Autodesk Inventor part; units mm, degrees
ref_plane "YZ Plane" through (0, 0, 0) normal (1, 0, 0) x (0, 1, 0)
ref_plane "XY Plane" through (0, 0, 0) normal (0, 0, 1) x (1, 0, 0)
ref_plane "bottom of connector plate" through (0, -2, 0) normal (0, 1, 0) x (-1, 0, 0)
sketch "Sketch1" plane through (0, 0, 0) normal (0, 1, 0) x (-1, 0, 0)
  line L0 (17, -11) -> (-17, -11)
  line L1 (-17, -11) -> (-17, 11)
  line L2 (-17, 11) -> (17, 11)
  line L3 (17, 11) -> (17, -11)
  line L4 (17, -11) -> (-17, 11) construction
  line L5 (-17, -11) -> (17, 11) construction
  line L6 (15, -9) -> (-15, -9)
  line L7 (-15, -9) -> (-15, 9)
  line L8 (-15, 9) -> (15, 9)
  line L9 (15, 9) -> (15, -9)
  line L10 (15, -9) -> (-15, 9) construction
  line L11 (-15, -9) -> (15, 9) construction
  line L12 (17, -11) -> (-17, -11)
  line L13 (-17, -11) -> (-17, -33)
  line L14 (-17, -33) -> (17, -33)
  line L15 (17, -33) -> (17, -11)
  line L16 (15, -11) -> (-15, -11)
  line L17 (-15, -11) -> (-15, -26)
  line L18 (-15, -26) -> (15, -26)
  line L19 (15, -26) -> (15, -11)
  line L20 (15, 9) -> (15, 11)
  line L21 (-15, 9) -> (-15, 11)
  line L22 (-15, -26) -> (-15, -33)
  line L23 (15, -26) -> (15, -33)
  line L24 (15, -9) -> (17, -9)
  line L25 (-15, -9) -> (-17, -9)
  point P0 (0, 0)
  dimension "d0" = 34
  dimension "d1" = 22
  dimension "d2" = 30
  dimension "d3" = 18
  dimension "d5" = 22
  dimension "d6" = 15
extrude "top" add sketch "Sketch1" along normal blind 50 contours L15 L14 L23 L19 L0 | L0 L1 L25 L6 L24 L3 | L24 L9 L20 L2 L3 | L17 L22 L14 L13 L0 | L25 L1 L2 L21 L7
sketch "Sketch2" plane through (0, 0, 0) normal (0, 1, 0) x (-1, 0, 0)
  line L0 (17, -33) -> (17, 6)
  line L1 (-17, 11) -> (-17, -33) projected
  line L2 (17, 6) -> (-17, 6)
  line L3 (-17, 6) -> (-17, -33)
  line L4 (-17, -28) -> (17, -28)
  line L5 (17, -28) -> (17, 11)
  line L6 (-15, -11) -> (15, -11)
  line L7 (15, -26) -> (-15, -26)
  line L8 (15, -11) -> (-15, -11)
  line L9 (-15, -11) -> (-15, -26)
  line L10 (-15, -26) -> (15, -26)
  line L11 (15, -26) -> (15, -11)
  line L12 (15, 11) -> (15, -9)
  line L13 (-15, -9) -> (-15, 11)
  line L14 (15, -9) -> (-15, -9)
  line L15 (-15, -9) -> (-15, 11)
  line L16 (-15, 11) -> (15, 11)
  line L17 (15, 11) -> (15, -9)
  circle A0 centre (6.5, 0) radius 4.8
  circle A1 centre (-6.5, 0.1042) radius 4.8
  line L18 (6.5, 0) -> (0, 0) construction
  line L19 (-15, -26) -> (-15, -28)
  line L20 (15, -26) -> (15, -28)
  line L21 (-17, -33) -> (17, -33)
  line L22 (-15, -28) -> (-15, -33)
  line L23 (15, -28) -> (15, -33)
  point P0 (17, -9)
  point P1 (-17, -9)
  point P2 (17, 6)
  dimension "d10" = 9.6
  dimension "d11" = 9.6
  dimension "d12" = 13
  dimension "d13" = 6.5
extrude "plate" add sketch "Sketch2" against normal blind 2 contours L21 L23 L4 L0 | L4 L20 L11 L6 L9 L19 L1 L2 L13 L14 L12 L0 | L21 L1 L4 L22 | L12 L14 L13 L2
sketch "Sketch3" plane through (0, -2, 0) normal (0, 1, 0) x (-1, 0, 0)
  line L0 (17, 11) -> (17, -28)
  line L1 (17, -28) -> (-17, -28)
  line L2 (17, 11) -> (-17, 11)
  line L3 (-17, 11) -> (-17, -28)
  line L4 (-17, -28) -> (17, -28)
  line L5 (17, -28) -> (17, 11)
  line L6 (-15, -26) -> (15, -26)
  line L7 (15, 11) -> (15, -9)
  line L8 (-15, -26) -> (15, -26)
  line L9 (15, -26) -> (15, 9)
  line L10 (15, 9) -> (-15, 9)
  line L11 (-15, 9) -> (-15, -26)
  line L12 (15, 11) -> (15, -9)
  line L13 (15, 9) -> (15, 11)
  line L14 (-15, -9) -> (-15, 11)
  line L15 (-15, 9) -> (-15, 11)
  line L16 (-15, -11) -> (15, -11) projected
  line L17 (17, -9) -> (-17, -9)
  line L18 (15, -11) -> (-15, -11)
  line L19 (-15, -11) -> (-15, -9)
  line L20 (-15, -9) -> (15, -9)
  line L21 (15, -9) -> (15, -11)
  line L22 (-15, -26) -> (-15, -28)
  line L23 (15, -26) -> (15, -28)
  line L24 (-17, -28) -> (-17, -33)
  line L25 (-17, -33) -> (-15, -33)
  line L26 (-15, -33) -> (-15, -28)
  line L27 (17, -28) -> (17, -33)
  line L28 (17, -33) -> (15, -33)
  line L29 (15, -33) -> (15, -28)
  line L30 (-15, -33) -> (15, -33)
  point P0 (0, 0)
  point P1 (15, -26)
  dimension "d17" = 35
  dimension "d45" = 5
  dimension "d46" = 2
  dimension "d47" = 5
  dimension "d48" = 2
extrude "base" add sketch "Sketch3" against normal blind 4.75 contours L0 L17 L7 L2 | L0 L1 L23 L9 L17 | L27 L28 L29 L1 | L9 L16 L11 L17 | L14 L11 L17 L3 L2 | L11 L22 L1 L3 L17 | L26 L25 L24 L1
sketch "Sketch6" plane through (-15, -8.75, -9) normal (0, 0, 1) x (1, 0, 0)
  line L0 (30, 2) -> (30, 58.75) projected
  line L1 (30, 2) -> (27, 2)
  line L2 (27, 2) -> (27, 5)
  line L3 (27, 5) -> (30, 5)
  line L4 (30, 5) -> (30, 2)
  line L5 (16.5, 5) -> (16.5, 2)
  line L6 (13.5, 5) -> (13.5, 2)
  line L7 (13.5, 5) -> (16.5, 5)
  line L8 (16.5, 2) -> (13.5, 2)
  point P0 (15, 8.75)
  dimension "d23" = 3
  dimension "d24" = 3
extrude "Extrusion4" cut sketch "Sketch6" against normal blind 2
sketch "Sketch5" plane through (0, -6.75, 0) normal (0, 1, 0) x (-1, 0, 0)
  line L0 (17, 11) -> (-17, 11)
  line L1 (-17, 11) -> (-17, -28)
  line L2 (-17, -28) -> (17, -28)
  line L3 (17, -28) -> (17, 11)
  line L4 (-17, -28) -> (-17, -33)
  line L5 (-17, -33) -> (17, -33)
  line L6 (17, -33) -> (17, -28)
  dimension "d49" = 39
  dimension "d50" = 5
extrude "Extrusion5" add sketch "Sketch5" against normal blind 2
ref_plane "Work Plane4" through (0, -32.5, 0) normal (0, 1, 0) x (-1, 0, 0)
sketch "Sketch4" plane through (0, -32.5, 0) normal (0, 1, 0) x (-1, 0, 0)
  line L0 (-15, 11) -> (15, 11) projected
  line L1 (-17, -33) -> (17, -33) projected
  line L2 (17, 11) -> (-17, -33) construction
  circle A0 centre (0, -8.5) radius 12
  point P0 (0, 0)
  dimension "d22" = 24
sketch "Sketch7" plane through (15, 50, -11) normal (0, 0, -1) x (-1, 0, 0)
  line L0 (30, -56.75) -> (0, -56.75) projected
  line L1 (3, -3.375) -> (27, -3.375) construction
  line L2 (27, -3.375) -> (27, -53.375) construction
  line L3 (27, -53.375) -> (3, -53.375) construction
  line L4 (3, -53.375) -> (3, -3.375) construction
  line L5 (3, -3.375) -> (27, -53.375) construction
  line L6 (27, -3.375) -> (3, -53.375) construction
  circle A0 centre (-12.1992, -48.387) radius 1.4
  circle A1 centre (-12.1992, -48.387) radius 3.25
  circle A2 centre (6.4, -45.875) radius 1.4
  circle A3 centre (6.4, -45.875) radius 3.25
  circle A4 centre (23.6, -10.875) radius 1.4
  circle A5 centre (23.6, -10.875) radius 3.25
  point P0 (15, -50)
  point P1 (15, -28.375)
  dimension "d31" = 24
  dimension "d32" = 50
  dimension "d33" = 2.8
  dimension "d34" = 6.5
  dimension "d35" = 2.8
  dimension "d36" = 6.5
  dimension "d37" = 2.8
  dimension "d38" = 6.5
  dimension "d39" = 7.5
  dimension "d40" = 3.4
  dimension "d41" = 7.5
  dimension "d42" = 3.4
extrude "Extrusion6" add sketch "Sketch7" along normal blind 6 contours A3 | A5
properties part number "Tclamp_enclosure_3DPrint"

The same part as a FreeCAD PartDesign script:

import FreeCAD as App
import Part
import Sketcher

V = App.Vector
Q = App.Units.Quantity

doc = App.newDocument("Part")
params = doc.addObject("Spreadsheet::Sheet", "Params")
for row, (alias, value) in enumerate([
    ("sketch1_width", "30 mm"),
    ("sketch1_height", "22 mm"),
    ("sketch1_height2", "20 mm"),
    ("pad1_length", "50 mm"),
    ("sketch2_diameter", "9.6 mm"),
    ("sketch2_width", "2 mm"),
    ("sketch2_width2", "34 mm"),
    ("sketch2_height", "39 mm"),
    ("sketch2_height2", "22 mm"),
    ("pad2_length", "2 mm"),
    ("sketch3_width", "2 mm"),
    ("sketch3_width2", "30 mm"),
    ("sketch3_height", "20 mm"),
    ("sketch3_height2", "44 mm"),
    ("pad3_length", "4.75 mm"),
    ("sketch4_width", "3 mm"),
    ("pocket1_length", "2 mm"),
    ("sketch5_width", "34 mm"),
    ("sketch5_height", "44 mm"),
    ("pad4_length", "2 mm"),
    ("sketch6_diameter", "6.5 mm"),
    ("sketch6_diameter2", "2.8 mm"),
    ("pad5_length", "6 mm"),
], start=1):
    params.set(f"A{row}", alias)
    params.set(f"B{row}", "=" + value)
    params.setAlias(f"B{row}", alias)

body = doc.addObject("PartDesign::Body", "Body")

sketch1 = body.newObject("Sketcher::SketchObject", "Sketch")
sketch1.AttachmentSupport = (doc.getObject("XZ_Plane"), [""])
sketch1.MapMode = "FlatFace"
sketch1.addGeometry([
    Part.LineSegment(V(-17, -33, 0), V(-17, 11, 0)),
    Part.LineSegment(V(-17, 11, 0), V(-15, 11, 0)),
    Part.LineSegment(V(-15, 11, 0), V(-15, -9, 0)),
    Part.LineSegment(V(-15, -9, 0), V(15, -9, 0)),
    Part.LineSegment(V(15, -9, 0), V(15, 11, 0)),
    Part.LineSegment(V(15, 11, 0), V(17, 11, 0)),
    Part.LineSegment(V(17, 11, 0), V(17, -33, 0)),
    Part.LineSegment(V(17, -33, 0), V(15, -33, 0)),
    Part.LineSegment(V(15, -33, 0), V(15, -11, 0)),
    Part.LineSegment(V(15, -11, 0), V(-15, -11, 0)),
    Part.LineSegment(V(-15, -11, 0), V(-15, -33, 0)),
    Part.LineSegment(V(-15, -33, 0), V(-17, -33, 0)),
], False)
sketch1.addConstraint([
    Sketcher.Constraint("Coincident", 0, 2, 1, 1),
    Sketcher.Constraint("Coincident", 1, 2, 2, 1),
    Sketcher.Constraint("Coincident", 2, 2, 3, 1),
    Sketcher.Constraint("Coincident", 3, 2, 4, 1),
    Sketcher.Constraint("Coincident", 4, 2, 5, 1),
    Sketcher.Constraint("Coincident", 5, 2, 6, 1),
    Sketcher.Constraint("Coincident", 6, 2, 7, 1),
    Sketcher.Constraint("Coincident", 7, 2, 8, 1),
    Sketcher.Constraint("Coincident", 8, 2, 9, 1),
    Sketcher.Constraint("Coincident", 9, 2, 10, 1),
    Sketcher.Constraint("Coincident", 10, 2, 11, 1),
    Sketcher.Constraint("Coincident", 11, 2, 0, 1),
    Sketcher.Constraint("Vertical", 0),
    Sketcher.Constraint("Horizontal", 1),
    Sketcher.Constraint("Vertical", 2),
    Sketcher.Constraint("Horizontal", 3),
    Sketcher.Constraint("Vertical", 4),
    Sketcher.Constraint("Horizontal", 5),
    Sketcher.Constraint("Vertical", 6),
    Sketcher.Constraint("Horizontal", 7),
    Sketcher.Constraint("Vertical", 8),
    Sketcher.Constraint("Horizontal", 9),
    Sketcher.Constraint("Vertical", 10),
    Sketcher.Constraint("Horizontal", 11),
    Sketcher.Constraint("Symmetric", 1, 2, 8, 2, -1, 1),
    Sketcher.Constraint("Symmetric", 4, 2, 9, 2, -1, 1),
    Sketcher.Constraint("Symmetric", 7, 2, 10, 2, -2),
    Sketcher.Constraint("Equal", 1, 5),
    Sketcher.Constraint("DistanceX", 3, 1, 3, 2, Q("30 mm")),
    Sketcher.Constraint("DistanceY", 8, 1, 8, 2, Q("22 mm")),
    Sketcher.Constraint("DistanceX", 0, 2, 5, 2, Q("34 mm")),
    Sketcher.Constraint("DistanceY", 8, 2, 4, 2, Q("22 mm")),
    Sketcher.Constraint("DistanceY", 2, 2, 2, 1, Q("20 mm")),
])
sketch1.setExpression("Constraints[28]", "Params.sketch1_width")
sketch1.setExpression("Constraints[29]", "Params.sketch1_height")
sketch1.setExpression("Constraints[32]", "Params.sketch1_height2")
pad1 = body.newObject("PartDesign::Pad", "Pad")
pad1.Profile = sketch1
pad1.setExpression("Length", "Params.pad1_length")
pad1.Reversed = True

sketch2 = body.newObject("Sketcher::SketchObject", "Sketch001")
sketch2.AttachmentSupport = (doc.getObject("XZ_Plane"), [""])
sketch2.MapMode = "FlatFace"
sketch2.addGeometry([
    Part.LineSegment(V(-15, -33, 0), V(-17, -33, 0)),
    Part.LineSegment(V(-17, -33, 0), V(-17, 6, 0)),
    Part.LineSegment(V(-17, 6, 0), V(17, 6, 0)),
    Part.LineSegment(V(17, 6, 0), V(17, -33, 0)),
    Part.LineSegment(V(17, -33, 0), V(15, -33, 0)),
    Part.LineSegment(V(15, -33, 0), V(15, -11, 0)),
    Part.LineSegment(V(15, -11, 0), V(-15, -11, 0)),
    Part.LineSegment(V(-15, -11, 0), V(-15, -33, 0)),
    Part.Circle(V(6.5, 0.1, 0), V(0, 0, 1), 4.8),
    Part.Circle(V(-6.5, 0, 0), V(0, 0, 1), 4.8),
], False)
sketch2.addConstraint([
    Sketcher.Constraint("Coincident", 0, 2, 1, 1),
    Sketcher.Constraint("Coincident", 1, 2, 2, 1),
    Sketcher.Constraint("Coincident", 2, 2, 3, 1),
    Sketcher.Constraint("Coincident", 3, 2, 4, 1),
    Sketcher.Constraint("Coincident", 4, 2, 5, 1),
    Sketcher.Constraint("Coincident", 5, 2, 6, 1),
    Sketcher.Constraint("Coincident", 6, 2, 7, 1),
    Sketcher.Constraint("Coincident", 7, 2, 0, 1),
    Sketcher.Constraint("Horizontal", 0),
    Sketcher.Constraint("Vertical", 1),
    Sketcher.Constraint("Horizontal", 2),
    Sketcher.Constraint("Vertical", 3),
    Sketcher.Constraint("Horizontal", 4),
    Sketcher.Constraint("Vertical", 5),
    Sketcher.Constraint("Horizontal", 6),
    Sketcher.Constraint("Vertical", 7),
    Sketcher.Constraint("Equal", 8, 9),
    Sketcher.Constraint("Symmetric", 0, 2, 3, 2, -2),
    Sketcher.Constraint("PointOnObject", 9, 3, -1),
    Sketcher.Constraint("Equal", 0, 4),
    Sketcher.Constraint("Diameter", 8, Q("9.6 mm")),
    Sketcher.Constraint("DistanceX", 9, 3, 8, 3, Q("13 mm")),
    Sketcher.Constraint("DistanceX", -1, 1, 8, 3, Q("6.5 mm")),
    Sketcher.Constraint("DistanceX", 0, 2, 0, 1, Q("2 mm")),
    Sketcher.Constraint("DistanceX", 2, 1, 2, 2, Q("34 mm")),
    Sketcher.Constraint("DistanceY", 1, 1, 1, 2, Q("39 mm")),
    Sketcher.Constraint("DistanceY", 5, 1, 5, 2, Q("22 mm")),
    Sketcher.Constraint("DistanceY", 0, 2, -1, 1, Q("33 mm")),
    Sketcher.Constraint("DistanceY", -1, 1, 8, 3, Q("0.1042 mm")),
])
sketch2.setExpression("Constraints[20]", "Params.sketch2_diameter")
sketch2.setExpression("Constraints[23]", "Params.sketch2_width")
sketch2.setExpression("Constraints[24]", "Params.sketch2_width2")
sketch2.setExpression("Constraints[25]", "Params.sketch2_height")
sketch2.setExpression("Constraints[26]", "Params.sketch2_height2")
pad2 = body.newObject("PartDesign::Pad", "Pad001")
pad2.Profile = sketch2
pad2.setExpression("Length", "Params.pad2_length")

sketch3 = body.newObject("Sketcher::SketchObject", "Sketch002")
sketch3.AttachmentSupport = (doc.getObject("XZ_Plane"), [""])
sketch3.MapMode = "FlatFace"
sketch3.AttachmentOffset = App.Placement(V(0, 0, 2), App.Rotation())
sketch3.addGeometry([
    Part.LineSegment(V(-17, 11, 0), V(-15, 11, 0)),
    Part.LineSegment(V(-15, 11, 0), V(-15, -9, 0)),
    Part.LineSegment(V(-15, -9, 0), V(15, -9, 0)),
    Part.LineSegment(V(15, -9, 0), V(15, 11, 0)),
    Part.LineSegment(V(15, 11, 0), V(17, 11, 0)),
    Part.LineSegment(V(17, 11, 0), V(17, -33, 0)),
    Part.LineSegment(V(17, -33, 0), V(15, -33, 0)),
    Part.LineSegment(V(15, -33, 0), V(15, -11, 0)),
    Part.LineSegment(V(15, -11, 0), V(-15, -11, 0)),
    Part.LineSegment(V(-15, -11, 0), V(-15, -33, 0)),
    Part.LineSegment(V(-15, -33, 0), V(-17, -33, 0)),
    Part.LineSegment(V(-17, -33, 0), V(-17, 11, 0)),
], False)
sketch3.addConstraint([
    Sketcher.Constraint("Coincident", 0, 2, 1, 1),
    Sketcher.Constraint("Coincident", 1, 2, 2, 1),
    Sketcher.Constraint("Coincident", 2, 2, 3, 1),
    Sketcher.Constraint("Coincident", 3, 2, 4, 1),
    Sketcher.Constraint("Coincident", 4, 2, 5, 1),
    Sketcher.Constraint("Coincident", 5, 2, 6, 1),
    Sketcher.Constraint("Coincident", 6, 2, 7, 1),
    Sketcher.Constraint("Coincident", 7, 2, 8, 1),
    Sketcher.Constraint("Coincident", 8, 2, 9, 1),
    Sketcher.Constraint("Coincident", 9, 2, 10, 1),
    Sketcher.Constraint("Coincident", 10, 2, 11, 1),
    Sketcher.Constraint("Coincident", 11, 2, 0, 1),
    Sketcher.Constraint("Horizontal", 0),
    Sketcher.Constraint("Vertical", 1),
    Sketcher.Constraint("Horizontal", 2),
    Sketcher.Constraint("Vertical", 3),
    Sketcher.Constraint("Horizontal", 4),
    Sketcher.Constraint("Vertical", 5),
    Sketcher.Constraint("Horizontal", 6),
    Sketcher.Constraint("Vertical", 7),
    Sketcher.Constraint("Horizontal", 8),
    Sketcher.Constraint("Vertical", 9),
    Sketcher.Constraint("Horizontal", 10),
    Sketcher.Constraint("Vertical", 11),
    Sketcher.Constraint("Symmetric", 0, 2, 7, 2, -1, 1),
    Sketcher.Constraint("Symmetric", 3, 2, 8, 2, -1, 1),
    Sketcher.Constraint("Symmetric", 6, 2, 9, 2, -2),
    Sketcher.Constraint("Equal", 0, 4),
    Sketcher.Constraint("DistanceX", 0, 1, 0, 2, Q("2 mm")),
    Sketcher.Constraint("DistanceY", 7, 2, 2, 2, Q("2 mm")),
    Sketcher.Constraint("DistanceX", 2, 1, 2, 2, Q("30 mm")),
    Sketcher.Constraint("DistanceY", 1, 2, 1, 1, Q("20 mm")),
    Sketcher.Constraint("DistanceY", 5, 2, 5, 1, Q("44 mm")),
])
sketch3.setExpression("Constraints[28]", "Params.sketch3_width")
sketch3.setExpression("Constraints[30]", "Params.sketch3_width2")
sketch3.setExpression("Constraints[31]", "Params.sketch3_height")
sketch3.setExpression("Constraints[32]", "Params.sketch3_height2")
pad3 = body.newObject("PartDesign::Pad", "Pad002")
pad3.Profile = sketch3
pad3.setExpression("Length", "Params.pad3_length")

sketch4 = body.newObject("Sketcher::SketchObject", "Sketch003")
sketch4.AttachmentSupport = (doc.getObject("XY_Plane"), [""])
sketch4.MapMode = "FlatFace"
sketch4.AttachmentOffset = App.Placement(V(0, 0, -9), App.Rotation())
sketch4.addGeometry([
    Part.LineSegment(V(12, -6.8, 0), V(15, -6.8, 0)),
    Part.LineSegment(V(15, -6.8, 0), V(15, -3.8, 0)),
    Part.LineSegment(V(15, -3.8, 0), V(12, -3.8, 0)),
    Part.LineSegment(V(12, -3.8, 0), V(12, -6.8, 0)),
    Part.LineSegment(V(1.5, -6.8, 0), V(1.5, -3.8, 0)),
    Part.LineSegment(V(1.5, -3.8, 0), V(-1.5, -3.8, 0)),
    Part.LineSegment(V(-1.5, -3.8, 0), V(-1.5, -6.8, 0)),
    Part.LineSegment(V(-1.5, -6.8, 0), V(1.5, -6.8, 0)),
], False)
sketch4.addConstraint([
    Sketcher.Constraint("Coincident", 0, 2, 1, 1),
    Sketcher.Constraint("Coincident", 1, 2, 2, 1),
    Sketcher.Constraint("Coincident", 2, 2, 3, 1),
    Sketcher.Constraint("Coincident", 3, 2, 0, 1),
    Sketcher.Constraint("Coincident", 4, 2, 5, 1),
    Sketcher.Constraint("Coincident", 5, 2, 6, 1),
    Sketcher.Constraint("Coincident", 6, 2, 7, 1),
    Sketcher.Constraint("Coincident", 7, 2, 4, 1),
    Sketcher.Constraint("Horizontal", 0),
    Sketcher.Constraint("Vertical", 1),
    Sketcher.Constraint("Horizontal", 2),
    Sketcher.Constraint("Vertical", 3),
    Sketcher.Constraint("Vertical", 4),
    Sketcher.Constraint("Horizontal", 5),
    Sketcher.Constraint("Vertical", 6),
    Sketcher.Constraint("Horizontal", 7),
    Sketcher.Constraint("Horizontal", 2, 2, 4, 2),
    Sketcher.Constraint("Horizontal", 3, 2, 6, 2),
    Sketcher.Constraint("Equal", 2, 5),
    Sketcher.Constraint("Equal", 7, 1),
    Sketcher.Constraint("DistanceX", 0, 1, 0, 2, Q("3 mm")),
    Sketcher.Constraint("DistanceX", -1, 1, 0, 2, Q("15 mm")),
    Sketcher.Constraint("DistanceX", -1, 1, 4, 2, Q("1.5 mm")),
    Sketcher.Constraint("DistanceY", 0, 2, -1, 1, Q("6.75 mm")),
])
sketch4.setExpression("Constraints[20]", "Params.sketch4_width")
pocket1 = body.newObject("PartDesign::Pocket", "Pocket")
pocket1.Profile = sketch4
pocket1.setExpression("Length", "Params.pocket1_length")

sketch5 = body.newObject("Sketcher::SketchObject", "Sketch004")
sketch5.AttachmentSupport = (doc.getObject("XZ_Plane"), [""])
sketch5.MapMode = "FlatFace"
sketch5.AttachmentOffset = App.Placement(V(0, 0, 6.75), App.Rotation())
sketch5.addGeometry([
    Part.LineSegment(V(-17, 11, 0), V(17, 11, 0)),
    Part.LineSegment(V(17, 11, 0), V(17, -33, 0)),
    Part.LineSegment(V(17, -33, 0), V(-17, -33, 0)),
    Part.LineSegment(V(-17, -33, 0), V(-17, 11, 0)),
], False)
sketch5.addConstraint([
    Sketcher.Constraint("Coincident", 0, 2, 1, 1),
    Sketcher.Constraint("Coincident", 1, 2, 2, 1),
    Sketcher.Constraint("Coincident", 2, 2, 3, 1),
    Sketcher.Constraint("Coincident", 3, 2, 0, 1),
    Sketcher.Constraint("Horizontal", 0),
    Sketcher.Constraint("Vertical", 1),
    Sketcher.Constraint("Horizontal", 2),
    Sketcher.Constraint("Vertical", 3),
    Sketcher.Constraint("DistanceX", 0, 1, 0, 2, Q("34 mm")),
    Sketcher.Constraint("DistanceY", 1, 2, 1, 1, Q("44 mm")),
    Sketcher.Constraint("DistanceX", -1, 1, 0, 2, Q("17 mm")),
    Sketcher.Constraint("DistanceY", -1, 1, 0, 2, Q("11 mm")),
])
sketch5.setExpression("Constraints[8]", "Params.sketch5_width")
sketch5.setExpression("Constraints[9]", "Params.sketch5_height")
pad4 = body.newObject("PartDesign::Pad", "Pad003")
pad4.Profile = sketch5
pad4.setExpression("Length", "Params.pad4_length")

sketch6 = body.newObject("Sketcher::SketchObject", "Sketch005")
sketch6.AttachmentSupport = (doc.getObject("XY_Plane"), [""])
sketch6.MapMode = "FlatFace"
sketch6.AttachmentOffset = App.Placement(V(0, 0, -11), App.Rotation())
sketch6.addGeometry([
    Part.Circle(V(8.6, 4.1, 0), V(0, 0, 1), 3.2),
    Part.Circle(V(8.6, 4.1, 0), V(0, 0, 1), 1.4),
    Part.Circle(V(-8.6, 39.1, 0), V(0, 0, 1), 3.2),
    Part.Circle(V(-8.6, 39.1, 0), V(0, 0, 1), 1.4),
], False)
sketch6.addConstraint([
    Sketcher.Constraint("Coincident", 1, 3, 0, 3),
    Sketcher.Constraint("Coincident", 3, 3, 2, 3),
    Sketcher.Constraint("Equal", 0, 2),
    Sketcher.Constraint("Equal", 1, 3),
    Sketcher.Constraint("Diameter", 0, Q("6.5 mm")),
    Sketcher.Constraint("Diameter", 1, Q("2.8 mm")),
    Sketcher.Constraint("DistanceY", 0, 3, 2, 3, Q("35 mm")),
    Sketcher.Constraint("DistanceX", -1, 1, 0, 3, Q("8.6 mm")),
    Sketcher.Constraint("DistanceX", 2, 3, -1, 1, Q("8.6 mm")),
    Sketcher.Constraint("DistanceY", -1, 1, 0, 3, Q("4.125 mm")),
])
sketch6.setExpression("Constraints[4]", "Params.sketch6_diameter")
sketch6.setExpression("Constraints[5]", "Params.sketch6_diameter2")
pad5 = body.newObject("PartDesign::Pad", "Pad004")
pad5.Profile = sketch6
pad5.setExpression("Length", "Params.pad5_length")
pad5.Reversed = True

doc.recompute()
